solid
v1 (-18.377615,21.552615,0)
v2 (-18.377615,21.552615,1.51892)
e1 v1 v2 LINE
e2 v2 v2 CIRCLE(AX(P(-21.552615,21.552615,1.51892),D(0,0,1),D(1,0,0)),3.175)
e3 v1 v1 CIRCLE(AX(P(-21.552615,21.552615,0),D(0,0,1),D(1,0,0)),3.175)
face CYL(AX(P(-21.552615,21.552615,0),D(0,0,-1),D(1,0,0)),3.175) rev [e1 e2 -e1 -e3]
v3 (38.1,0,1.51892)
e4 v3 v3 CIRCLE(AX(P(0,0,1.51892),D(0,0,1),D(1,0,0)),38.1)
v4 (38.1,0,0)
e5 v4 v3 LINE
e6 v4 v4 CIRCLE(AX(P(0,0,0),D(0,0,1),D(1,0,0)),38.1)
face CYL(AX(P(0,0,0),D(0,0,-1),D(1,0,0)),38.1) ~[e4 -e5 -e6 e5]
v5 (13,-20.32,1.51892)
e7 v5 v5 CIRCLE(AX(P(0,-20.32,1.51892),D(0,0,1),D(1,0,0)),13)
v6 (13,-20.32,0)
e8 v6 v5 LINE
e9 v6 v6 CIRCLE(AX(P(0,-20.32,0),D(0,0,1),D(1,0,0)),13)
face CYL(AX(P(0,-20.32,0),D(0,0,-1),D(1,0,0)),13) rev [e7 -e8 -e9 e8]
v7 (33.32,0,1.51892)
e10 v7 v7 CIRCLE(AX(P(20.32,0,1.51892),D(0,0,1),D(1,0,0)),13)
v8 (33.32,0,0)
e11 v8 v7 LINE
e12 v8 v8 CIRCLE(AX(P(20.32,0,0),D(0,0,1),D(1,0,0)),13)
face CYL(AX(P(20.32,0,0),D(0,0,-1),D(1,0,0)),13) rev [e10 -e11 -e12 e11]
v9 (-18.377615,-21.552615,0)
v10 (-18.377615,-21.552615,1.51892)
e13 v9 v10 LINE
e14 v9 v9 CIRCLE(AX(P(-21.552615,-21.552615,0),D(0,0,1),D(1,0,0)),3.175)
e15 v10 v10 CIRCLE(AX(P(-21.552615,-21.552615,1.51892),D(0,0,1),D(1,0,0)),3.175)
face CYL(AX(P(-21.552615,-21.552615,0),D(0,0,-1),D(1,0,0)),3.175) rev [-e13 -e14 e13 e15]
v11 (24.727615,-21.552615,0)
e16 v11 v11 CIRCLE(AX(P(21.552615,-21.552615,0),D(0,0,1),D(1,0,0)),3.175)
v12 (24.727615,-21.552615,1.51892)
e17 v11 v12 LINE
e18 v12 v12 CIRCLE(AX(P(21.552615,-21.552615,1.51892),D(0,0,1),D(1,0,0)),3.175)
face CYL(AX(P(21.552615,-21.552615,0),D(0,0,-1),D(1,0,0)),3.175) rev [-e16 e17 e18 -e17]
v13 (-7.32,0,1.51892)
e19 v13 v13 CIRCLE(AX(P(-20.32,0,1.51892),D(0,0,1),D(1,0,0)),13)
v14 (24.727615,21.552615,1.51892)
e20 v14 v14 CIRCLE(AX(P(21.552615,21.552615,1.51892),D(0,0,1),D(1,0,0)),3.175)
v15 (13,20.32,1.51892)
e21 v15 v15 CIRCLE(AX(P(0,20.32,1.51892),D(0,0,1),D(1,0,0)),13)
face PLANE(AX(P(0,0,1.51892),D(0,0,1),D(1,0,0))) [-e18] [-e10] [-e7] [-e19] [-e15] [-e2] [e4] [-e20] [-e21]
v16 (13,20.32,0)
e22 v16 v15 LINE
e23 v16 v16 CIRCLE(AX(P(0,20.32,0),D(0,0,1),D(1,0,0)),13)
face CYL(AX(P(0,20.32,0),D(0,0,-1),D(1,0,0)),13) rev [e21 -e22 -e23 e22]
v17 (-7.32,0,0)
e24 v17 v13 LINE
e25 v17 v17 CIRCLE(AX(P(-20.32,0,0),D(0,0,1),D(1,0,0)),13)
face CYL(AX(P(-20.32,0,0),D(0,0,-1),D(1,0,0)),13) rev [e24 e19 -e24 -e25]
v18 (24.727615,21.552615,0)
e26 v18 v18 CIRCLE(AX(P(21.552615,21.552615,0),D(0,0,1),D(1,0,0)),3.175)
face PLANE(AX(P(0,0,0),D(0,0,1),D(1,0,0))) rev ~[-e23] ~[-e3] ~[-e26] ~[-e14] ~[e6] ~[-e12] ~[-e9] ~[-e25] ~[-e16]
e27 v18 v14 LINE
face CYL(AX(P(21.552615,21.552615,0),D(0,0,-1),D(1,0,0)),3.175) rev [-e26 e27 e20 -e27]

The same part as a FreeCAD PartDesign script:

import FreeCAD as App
import Part
import Sketcher

V = App.Vector
Q = App.Units.Quantity

doc = App.newDocument("Part")
params = doc.addObject("Spreadsheet::Sheet", "Params")
for row, (alias, value) in enumerate([
    ("sketch1_diameter", "3 in"),
    ("sketch1_diameter2", "0.25 in"),
    ("pad1_length", "0.0598 in"),
], start=1):
    params.set(f"A{row}", alias)
    params.set(f"B{row}", "=" + value)
    params.setAlias(f"B{row}", alias)

body = doc.addObject("PartDesign::Body", "Body")

# Sketch on XY plane
sketch1 = body.newObject("Sketcher::SketchObject", "Sketch")
sketch1.AttachmentSupport = (doc.getObject("XY_Plane"), [""])
sketch1.MapMode = "FlatFace"
sketch1.addGeometry([
    Part.Circle(V(0, 0, 0), V(0, 0, 1), 38.1),  # 0
    Part.Circle(V(-21.6, -21.6, 0), V(0, 0, 1), 3.2),  # 1
    Part.Circle(V(0, -20.3, 0), V(0, 0, 1), 13),  # 2
    Part.Circle(V(21.6, -21.6, 0), V(0, 0, 1), 3.2),  # 3
    Part.Circle(V(-20.3, 0, 0), V(0, 0, 1), 13),  # 4
    Part.Circle(V(-21.6, 21.6, 0), V(0, 0, 1), 3.2),  # 5
    Part.Circle(V(20.3, 0, 0), V(0, 0, 1), 13),  # 6
    Part.Circle(V(0, 20.3, 0), V(0, 0, 1), 13),  # 7
    Part.Circle(V(21.6, 21.6, 0), V(0, 0, 1), 3.2),  # 8
], False)
sketch1.addConstraint([
    Sketcher.Constraint("Coincident", 0, 3, -1, 1),
    Sketcher.Constraint("Equal", 1, 3),
    Sketcher.Constraint("Equal", 2, 4),
    Sketcher.Constraint("Equal", 3, 5),
    Sketcher.Constraint("Equal", 4, 6),
    Sketcher.Constraint("Equal", 6, 7),
    Sketcher.Constraint("Equal", 5, 8),
    Sketcher.Constraint("Symmetric", 3, 3, 5, 3, -1, 1),
    Sketcher.Constraint("Symmetric", 4, 3, 6, 3, -1, 1),
    Sketcher.Constraint("Symmetric", 2, 3, 7, 3, -1, 1),
    Sketcher.Constraint("Symmetric", 1, 3, 8, 3, -1, 1),
    Sketcher.Constraint("Symmetric", 1, 3, 3, 3, -2),
    Sketcher.Constraint("PointOnObject", 2, 3, -2),
    Sketcher.Constraint("PointOnObject", 4, 3, -1),
    Sketcher.Constraint("Diameter", 0, Q("3 in")),
    Sketcher.Constraint("Diameter", 1, Q("0.25 in")),
    Sketcher.Constraint("DistanceY", 2, 3, -1, 1, Q("0.8 in")),
    Sketcher.Constraint("DistanceX", 4, 3, -1, 1, Q("0.8 in")),
    Sketcher.Constraint("Diameter", 2, 26.0),
    Sketcher.Constraint("DistanceX", 1, 3, 3, 3, 43.10523),
    Sketcher.Constraint("DistanceY", 1, 3, 5, 3, 43.10523),
])
sketch1.setExpression("Constraints[14]", "Params.sketch1_diameter")
sketch1.setExpression("Constraints[15]", "Params.sketch1_diameter2")
pad1 = body.newObject("PartDesign::Pad", "Pad")
pad1.Profile = sketch1
pad1.setExpression("Length", "Params.pad1_length")

doc.recompute()
